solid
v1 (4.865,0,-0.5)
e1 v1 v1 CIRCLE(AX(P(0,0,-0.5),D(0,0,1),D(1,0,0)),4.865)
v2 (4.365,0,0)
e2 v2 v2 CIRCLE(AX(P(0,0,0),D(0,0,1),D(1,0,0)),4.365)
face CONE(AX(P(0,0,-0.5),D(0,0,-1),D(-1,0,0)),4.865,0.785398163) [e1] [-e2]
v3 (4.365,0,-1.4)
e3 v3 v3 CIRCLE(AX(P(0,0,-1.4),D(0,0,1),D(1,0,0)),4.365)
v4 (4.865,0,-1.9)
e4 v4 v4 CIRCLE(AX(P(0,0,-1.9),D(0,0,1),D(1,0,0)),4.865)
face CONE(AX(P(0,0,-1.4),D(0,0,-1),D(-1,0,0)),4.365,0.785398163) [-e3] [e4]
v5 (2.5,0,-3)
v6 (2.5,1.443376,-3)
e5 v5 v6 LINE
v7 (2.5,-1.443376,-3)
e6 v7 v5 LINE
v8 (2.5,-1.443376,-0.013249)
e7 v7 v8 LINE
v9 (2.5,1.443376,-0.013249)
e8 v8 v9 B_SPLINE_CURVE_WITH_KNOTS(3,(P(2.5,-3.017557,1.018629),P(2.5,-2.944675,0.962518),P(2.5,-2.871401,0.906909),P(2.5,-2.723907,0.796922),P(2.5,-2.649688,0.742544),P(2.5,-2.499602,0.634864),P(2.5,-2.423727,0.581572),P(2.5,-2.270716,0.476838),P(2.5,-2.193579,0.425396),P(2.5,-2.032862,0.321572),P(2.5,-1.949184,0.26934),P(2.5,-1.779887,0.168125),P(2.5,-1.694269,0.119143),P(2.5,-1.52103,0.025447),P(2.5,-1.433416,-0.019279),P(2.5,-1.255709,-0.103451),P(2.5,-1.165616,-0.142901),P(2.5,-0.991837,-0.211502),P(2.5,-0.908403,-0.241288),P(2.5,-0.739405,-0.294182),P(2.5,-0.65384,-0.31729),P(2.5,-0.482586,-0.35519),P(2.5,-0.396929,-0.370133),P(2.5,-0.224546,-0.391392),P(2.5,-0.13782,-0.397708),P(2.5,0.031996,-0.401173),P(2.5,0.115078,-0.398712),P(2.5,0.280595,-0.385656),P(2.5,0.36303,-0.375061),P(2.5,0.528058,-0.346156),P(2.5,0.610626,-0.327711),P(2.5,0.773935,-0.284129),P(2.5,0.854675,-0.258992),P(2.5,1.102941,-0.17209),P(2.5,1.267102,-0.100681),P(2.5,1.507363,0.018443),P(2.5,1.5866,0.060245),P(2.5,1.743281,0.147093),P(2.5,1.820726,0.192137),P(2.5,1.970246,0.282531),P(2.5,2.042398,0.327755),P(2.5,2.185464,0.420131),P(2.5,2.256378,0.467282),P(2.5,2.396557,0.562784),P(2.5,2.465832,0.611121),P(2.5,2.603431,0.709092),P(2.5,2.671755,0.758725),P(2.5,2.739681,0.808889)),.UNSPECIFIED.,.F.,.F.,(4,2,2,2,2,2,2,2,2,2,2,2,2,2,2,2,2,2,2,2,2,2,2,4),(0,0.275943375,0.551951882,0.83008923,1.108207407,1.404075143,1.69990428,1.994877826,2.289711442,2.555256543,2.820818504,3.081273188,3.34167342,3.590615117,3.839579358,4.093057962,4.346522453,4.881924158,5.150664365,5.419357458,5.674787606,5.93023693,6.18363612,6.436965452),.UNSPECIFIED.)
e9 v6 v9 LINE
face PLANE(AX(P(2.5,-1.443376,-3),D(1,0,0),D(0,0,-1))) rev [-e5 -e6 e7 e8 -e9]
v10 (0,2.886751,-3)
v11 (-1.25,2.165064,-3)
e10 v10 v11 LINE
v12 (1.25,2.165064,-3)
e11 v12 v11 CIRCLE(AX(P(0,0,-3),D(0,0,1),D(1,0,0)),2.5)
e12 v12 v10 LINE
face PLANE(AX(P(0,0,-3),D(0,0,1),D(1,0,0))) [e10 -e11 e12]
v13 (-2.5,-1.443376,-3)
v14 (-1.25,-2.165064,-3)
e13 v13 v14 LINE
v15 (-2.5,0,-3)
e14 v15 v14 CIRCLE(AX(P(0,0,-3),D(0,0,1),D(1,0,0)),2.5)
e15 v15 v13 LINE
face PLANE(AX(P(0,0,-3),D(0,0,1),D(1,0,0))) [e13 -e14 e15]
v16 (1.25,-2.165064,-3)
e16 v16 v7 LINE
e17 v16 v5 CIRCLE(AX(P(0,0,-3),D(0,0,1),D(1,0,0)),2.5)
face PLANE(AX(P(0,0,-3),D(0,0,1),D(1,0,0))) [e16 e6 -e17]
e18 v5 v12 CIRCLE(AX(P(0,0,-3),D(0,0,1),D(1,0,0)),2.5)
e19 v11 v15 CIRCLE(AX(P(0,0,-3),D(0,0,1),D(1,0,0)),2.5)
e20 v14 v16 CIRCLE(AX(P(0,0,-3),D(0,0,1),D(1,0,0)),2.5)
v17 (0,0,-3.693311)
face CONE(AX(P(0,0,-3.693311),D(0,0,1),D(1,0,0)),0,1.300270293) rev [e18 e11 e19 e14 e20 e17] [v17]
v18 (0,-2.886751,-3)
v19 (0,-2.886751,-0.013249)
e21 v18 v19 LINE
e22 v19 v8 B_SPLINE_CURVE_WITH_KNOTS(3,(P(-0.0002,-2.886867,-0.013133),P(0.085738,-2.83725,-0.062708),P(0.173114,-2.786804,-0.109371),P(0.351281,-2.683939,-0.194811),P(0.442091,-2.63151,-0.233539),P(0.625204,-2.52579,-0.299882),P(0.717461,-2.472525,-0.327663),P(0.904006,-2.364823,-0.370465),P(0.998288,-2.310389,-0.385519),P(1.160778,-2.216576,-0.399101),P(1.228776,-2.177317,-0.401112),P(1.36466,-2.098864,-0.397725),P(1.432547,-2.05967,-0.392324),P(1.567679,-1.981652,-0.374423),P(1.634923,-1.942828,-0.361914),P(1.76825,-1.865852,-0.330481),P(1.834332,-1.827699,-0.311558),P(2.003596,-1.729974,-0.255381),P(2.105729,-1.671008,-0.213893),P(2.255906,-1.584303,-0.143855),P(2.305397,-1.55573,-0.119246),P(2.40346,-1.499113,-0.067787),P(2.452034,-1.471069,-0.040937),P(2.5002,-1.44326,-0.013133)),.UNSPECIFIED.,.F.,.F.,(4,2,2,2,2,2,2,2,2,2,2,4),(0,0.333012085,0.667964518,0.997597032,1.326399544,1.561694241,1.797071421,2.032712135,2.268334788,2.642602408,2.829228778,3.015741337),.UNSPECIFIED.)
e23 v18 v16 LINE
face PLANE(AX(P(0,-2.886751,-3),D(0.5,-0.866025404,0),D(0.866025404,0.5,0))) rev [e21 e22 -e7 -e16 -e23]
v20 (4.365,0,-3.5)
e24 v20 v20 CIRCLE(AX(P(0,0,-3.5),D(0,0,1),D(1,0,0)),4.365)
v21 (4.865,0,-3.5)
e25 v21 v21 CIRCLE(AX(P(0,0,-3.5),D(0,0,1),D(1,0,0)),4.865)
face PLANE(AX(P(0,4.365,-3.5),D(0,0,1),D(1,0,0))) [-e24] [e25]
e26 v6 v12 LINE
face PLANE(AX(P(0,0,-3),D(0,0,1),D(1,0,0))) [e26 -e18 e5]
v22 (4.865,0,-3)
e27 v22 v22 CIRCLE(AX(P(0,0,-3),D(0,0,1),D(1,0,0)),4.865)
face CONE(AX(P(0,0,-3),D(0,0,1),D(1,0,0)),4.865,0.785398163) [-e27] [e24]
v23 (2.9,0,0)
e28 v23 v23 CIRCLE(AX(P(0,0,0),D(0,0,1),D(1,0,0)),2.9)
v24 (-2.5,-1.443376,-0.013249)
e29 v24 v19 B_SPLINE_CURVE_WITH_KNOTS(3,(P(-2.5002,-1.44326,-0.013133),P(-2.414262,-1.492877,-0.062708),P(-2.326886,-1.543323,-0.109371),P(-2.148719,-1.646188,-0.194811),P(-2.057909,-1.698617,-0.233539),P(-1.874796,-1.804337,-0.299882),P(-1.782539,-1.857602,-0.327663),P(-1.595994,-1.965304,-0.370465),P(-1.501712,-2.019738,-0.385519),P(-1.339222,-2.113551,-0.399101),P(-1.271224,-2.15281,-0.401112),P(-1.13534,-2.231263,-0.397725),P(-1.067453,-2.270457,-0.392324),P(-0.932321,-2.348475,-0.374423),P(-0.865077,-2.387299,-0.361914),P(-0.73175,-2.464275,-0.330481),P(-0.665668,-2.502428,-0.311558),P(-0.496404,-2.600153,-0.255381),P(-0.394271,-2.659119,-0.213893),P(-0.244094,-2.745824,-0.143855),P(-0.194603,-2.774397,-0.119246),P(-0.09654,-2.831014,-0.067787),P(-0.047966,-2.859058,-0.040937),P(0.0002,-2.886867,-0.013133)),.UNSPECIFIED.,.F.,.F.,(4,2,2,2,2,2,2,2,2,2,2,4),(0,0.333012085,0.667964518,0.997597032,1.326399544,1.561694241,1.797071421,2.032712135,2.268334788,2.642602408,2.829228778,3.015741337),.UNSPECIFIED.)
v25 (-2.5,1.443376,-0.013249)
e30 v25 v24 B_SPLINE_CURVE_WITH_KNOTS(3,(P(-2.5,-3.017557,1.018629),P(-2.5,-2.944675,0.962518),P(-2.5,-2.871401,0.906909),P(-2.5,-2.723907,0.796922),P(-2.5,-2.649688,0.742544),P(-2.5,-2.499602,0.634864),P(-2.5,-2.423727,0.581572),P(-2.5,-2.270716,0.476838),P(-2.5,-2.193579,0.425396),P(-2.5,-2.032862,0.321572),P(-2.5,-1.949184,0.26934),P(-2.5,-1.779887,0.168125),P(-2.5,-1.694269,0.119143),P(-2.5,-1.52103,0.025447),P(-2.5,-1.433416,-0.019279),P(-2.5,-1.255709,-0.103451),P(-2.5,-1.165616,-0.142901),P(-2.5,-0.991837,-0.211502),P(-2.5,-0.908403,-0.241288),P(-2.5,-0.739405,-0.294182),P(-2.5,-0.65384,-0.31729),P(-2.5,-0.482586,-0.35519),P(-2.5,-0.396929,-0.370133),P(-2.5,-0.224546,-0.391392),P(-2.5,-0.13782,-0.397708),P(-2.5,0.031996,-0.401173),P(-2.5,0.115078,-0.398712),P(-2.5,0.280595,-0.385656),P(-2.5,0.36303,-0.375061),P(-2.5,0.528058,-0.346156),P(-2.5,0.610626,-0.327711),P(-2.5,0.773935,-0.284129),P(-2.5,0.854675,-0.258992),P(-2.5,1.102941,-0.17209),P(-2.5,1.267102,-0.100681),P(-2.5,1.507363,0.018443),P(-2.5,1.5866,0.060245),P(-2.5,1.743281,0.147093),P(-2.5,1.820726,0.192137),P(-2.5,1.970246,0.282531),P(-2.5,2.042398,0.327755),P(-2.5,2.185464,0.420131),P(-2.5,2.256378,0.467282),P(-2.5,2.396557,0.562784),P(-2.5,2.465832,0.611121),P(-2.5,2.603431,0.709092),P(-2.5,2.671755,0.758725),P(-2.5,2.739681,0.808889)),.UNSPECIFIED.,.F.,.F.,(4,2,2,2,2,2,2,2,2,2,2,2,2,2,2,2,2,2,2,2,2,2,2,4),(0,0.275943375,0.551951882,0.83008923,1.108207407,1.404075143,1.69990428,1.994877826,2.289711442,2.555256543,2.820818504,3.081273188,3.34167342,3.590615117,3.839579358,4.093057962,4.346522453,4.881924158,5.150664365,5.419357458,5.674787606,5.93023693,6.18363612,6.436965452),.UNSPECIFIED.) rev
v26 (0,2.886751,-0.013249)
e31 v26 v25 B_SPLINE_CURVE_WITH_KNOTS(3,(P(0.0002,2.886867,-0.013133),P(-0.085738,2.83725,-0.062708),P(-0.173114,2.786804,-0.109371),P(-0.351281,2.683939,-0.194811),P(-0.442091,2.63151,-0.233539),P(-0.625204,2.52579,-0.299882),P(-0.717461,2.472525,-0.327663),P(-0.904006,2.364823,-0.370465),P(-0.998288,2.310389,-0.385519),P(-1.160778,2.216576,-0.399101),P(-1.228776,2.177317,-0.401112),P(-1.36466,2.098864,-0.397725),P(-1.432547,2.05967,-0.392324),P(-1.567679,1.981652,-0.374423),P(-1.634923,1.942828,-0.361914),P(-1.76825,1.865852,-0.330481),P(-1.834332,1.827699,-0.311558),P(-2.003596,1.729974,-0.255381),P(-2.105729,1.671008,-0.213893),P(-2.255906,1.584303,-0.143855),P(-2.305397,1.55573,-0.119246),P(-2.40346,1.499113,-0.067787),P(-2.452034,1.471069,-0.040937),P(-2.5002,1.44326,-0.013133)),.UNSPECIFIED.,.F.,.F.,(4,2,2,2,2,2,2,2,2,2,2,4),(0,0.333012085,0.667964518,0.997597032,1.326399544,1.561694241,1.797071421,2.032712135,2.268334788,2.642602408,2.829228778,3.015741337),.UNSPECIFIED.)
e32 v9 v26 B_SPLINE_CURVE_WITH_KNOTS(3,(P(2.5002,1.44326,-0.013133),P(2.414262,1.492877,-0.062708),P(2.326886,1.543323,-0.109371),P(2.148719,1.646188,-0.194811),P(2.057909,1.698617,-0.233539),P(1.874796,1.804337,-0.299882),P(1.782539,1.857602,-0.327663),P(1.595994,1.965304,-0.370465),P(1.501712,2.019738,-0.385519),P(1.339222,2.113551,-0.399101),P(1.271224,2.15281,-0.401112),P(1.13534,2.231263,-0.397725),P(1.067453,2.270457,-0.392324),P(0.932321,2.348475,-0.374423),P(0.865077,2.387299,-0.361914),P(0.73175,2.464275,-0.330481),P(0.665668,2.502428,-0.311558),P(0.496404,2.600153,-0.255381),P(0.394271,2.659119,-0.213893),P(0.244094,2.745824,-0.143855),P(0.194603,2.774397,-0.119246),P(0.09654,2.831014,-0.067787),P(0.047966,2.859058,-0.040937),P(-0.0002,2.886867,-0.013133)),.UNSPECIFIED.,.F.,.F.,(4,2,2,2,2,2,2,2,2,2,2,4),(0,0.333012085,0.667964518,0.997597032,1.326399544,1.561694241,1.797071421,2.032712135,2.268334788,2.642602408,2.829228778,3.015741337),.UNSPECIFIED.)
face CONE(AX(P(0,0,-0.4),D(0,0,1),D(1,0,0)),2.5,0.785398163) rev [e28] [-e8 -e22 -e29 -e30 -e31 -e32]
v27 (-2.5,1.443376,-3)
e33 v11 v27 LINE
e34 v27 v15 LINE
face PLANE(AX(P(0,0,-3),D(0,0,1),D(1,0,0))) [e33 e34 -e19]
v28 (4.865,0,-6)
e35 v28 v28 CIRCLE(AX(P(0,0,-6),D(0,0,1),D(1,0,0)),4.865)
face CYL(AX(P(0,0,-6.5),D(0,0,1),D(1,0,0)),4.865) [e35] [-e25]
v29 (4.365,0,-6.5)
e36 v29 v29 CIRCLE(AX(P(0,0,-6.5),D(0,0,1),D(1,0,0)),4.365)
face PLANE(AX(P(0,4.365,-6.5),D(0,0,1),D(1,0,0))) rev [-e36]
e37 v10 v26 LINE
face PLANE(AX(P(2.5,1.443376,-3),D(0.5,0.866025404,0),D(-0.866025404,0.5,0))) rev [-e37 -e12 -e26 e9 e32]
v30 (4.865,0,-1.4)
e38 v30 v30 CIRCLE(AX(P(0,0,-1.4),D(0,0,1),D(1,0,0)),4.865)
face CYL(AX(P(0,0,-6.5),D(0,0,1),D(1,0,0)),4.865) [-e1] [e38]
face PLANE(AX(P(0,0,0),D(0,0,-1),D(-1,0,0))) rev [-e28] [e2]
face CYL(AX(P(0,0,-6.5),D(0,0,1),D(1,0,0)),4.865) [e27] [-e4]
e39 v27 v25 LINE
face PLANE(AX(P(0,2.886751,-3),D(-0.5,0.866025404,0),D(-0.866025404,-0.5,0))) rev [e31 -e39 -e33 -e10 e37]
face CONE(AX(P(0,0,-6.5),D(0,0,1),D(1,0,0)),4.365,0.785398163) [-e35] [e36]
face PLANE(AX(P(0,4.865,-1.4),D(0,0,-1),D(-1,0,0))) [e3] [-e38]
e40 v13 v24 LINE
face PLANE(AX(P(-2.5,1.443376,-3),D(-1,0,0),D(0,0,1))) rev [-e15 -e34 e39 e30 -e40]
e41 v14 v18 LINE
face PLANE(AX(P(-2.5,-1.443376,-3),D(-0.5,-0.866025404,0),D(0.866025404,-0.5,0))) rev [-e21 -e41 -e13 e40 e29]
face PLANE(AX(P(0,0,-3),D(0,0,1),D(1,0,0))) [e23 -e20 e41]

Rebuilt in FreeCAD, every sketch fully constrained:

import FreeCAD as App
import Part
import Sketcher
Q = App.Units.Quantity

doc = App.newDocument("Part")
body = doc.addObject("PartDesign::Body", "Body")

# Sketch on YZ plane
sketch1 = doc.addObject("Sketcher::SketchObject", "Sketch")
body.addObject(sketch1)
sketch1.AttachmentSupport = (doc.YZ_Plane, [""])
sketch1.MapMode = "FlatFace"
sketch1.addGeometry([
    Part.LineSegment(App.Vector(4.4, 0, 0), App.Vector(0, 0, 0)),  # 0
    Part.LineSegment(App.Vector(0, 0, 0), App.Vector(0, -6.5, 0)),  # 1
    Part.LineSegment(App.Vector(0, -6.5, 0), App.Vector(4.4, -6.5, 0)),  # 2
    Part.LineSegment(App.Vector(4.4, -6.5, 0), App.Vector(4.9, -6, 0)),  # 3
    Part.LineSegment(App.Vector(4.9, -6, 0), App.Vector(4.9, -0.5, 0)),  # 4
    Part.LineSegment(App.Vector(4.9, -0.5, 0), App.Vector(4.4, 0, 0)),  # 5
], False)
sketch1.addConstraint([
    Sketcher.Constraint("Coincident", 0, 2, 1, 1),
    Sketcher.Constraint("Coincident", 1, 2, 2, 1),
    Sketcher.Constraint("Coincident", 2, 2, 3, 1),
    Sketcher.Constraint("Coincident", 3, 2, 4, 1),
    Sketcher.Constraint("Coincident", 4, 2, 5, 1),
    Sketcher.Constraint("Coincident", 5, 2, 0, 1),
    Sketcher.Constraint("Horizontal", 0),
    Sketcher.Constraint("Vertical", 1),
    Sketcher.Constraint("Horizontal", 2),
    Sketcher.Constraint("Vertical", 4),
    Sketcher.Constraint("Coincident", 0, 2, -1, 1),
    Sketcher.Constraint("Perpendicular", 3, 5),
    Sketcher.Constraint("Vertical", 2, 2, 5, 2),
    Sketcher.Constraint("Equal", 3, 5),
    Sketcher.Constraint("DistanceY", 1, 2, 1, 1, 6.5),
    Sketcher.Constraint("DistanceY", 4, 1, 4, 2, 5.5),
    Sketcher.Constraint("DistanceX", 0, 2, 0, 1, 4.365),
])
revolution = doc.addObject("PartDesign::Revolution", "Revolution")
body.addObject(revolution)
revolution.Profile = sketch1
revolution.ReferenceAxis = (sketch1, ["V_Axis"])
revolution.Angle = 360

# Sketch on YZ plane
sketch2 = doc.addObject("Sketcher::SketchObject", "Sketch001")
body.addObject(sketch2)
sketch2.AttachmentSupport = (doc.YZ_Plane, [""])
sketch2.MapMode = "FlatFace"
sketch2.addGeometry([
    Part.LineSegment(App.Vector(4.9, 0, 0), App.Vector(4.9, -1.4, 0)),  # 0
    Part.LineSegment(App.Vector(4.9, -1.4, 0), App.Vector(4.4, -1.4, 0)),  # 1
    Part.LineSegment(App.Vector(4.4, -1.4, 0), App.Vector(4.9, -1.9, 0)),  # 2
    Part.LineSegment(App.Vector(4.9, -1.9, 0), App.Vector(4.9, -3, 0)),  # 3
    Part.LineSegment(App.Vector(4.9, -3, 0), App.Vector(4.4, -3.5, 0)),  # 4
    Part.LineSegment(App.Vector(4.4, -3.5, 0), App.Vector(4.9, -3.5, 0)),  # 5
    Part.LineSegment(App.Vector(4.9, -3.5, 0), App.Vector(4.9, -6.5, 0)),  # 6
    Part.LineSegment(App.Vector(4.9, -6.5, 0), App.Vector(9.9, -6.5, 0)),  # 7
    Part.LineSegment(App.Vector(9.9, -6.5, 0), App.Vector(9.9, 0, 0)),  # 8
    Part.LineSegment(App.Vector(9.9, 0, 0), App.Vector(4.9, 0, 0)),  # 9
], False)
sketch2.addConstraint([
    Sketcher.Constraint("Coincident", 0, 2, 1, 1),
    Sketcher.Constraint("Coincident", 1, 2, 2, 1),
    Sketcher.Constraint("Coincident", 2, 2, 3, 1),
    Sketcher.Constraint("Coincident", 3, 2, 4, 1),
    Sketcher.Constraint("Coincident", 4, 2, 5, 1),
    Sketcher.Constraint("Coincident", 5, 2, 6, 1),
    Sketcher.Constraint("Coincident", 6, 2, 7, 1),
    Sketcher.Constraint("Coincident", 7, 2, 8, 1),
    Sketcher.Constraint("Coincident", 8, 2, 9, 1),
    Sketcher.Constraint("Coincident", 9, 2, 0, 1),
    Sketcher.Constraint("Vertical", 0),
    Sketcher.Constraint("Horizontal", 1),
    Sketcher.Constraint("Vertical", 3),
    Sketcher.Constraint("Horizontal", 5),
    Sketcher.Constraint("Vertical", 6),
    Sketcher.Constraint("Horizontal", 7),
    Sketcher.Constraint("Vertical", 8),
    Sketcher.Constraint("Horizontal", 9),
    Sketcher.Constraint("PointOnObject", 8, 2, -1),
    Sketcher.Constraint("Perpendicular", 2, 4),
    Sketcher.Constraint("Vertical", 0, 2, 2, 2),
    Sketcher.Constraint("Vertical", 1, 2, 4, 2),
    Sketcher.Constraint("Vertical", 3, 2, 5, 2),
    Sketcher.Constraint("Equal", 2, 4),
    Sketcher.Constraint("DistanceX", 7, 1, 7, 2, 5.0),
    Sketcher.Constraint("DistanceY", 6, 2, 6, 1, 3.0),
    Sketcher.Constraint("DistanceX", 1, 2, 1, 1, 0.5),
    Sketcher.Constraint("DistanceY", 0, 2, 0, 1, 1.4),
    Sketcher.Constraint("DistanceY", 3, 2, 3, 1, 1.1),
    Sketcher.Constraint("DistanceX", -1, 1, 0, 2, 4.865),
])
groove = doc.addObject("PartDesign::Groove", "Groove")
body.addObject(groove)
groove.Profile = sketch2
groove.ReferenceAxis = (sketch2, ["V_Axis"])
groove.Angle = 360

# Sketch on YZ plane
sketch3 = doc.addObject("Sketcher::SketchObject", "Sketch002")
body.addObject(sketch3)
sketch3.AttachmentSupport = (doc.YZ_Plane, [""])
sketch3.MapMode = "FlatFace"
sketch3.addGeometry([
    Part.LineSegment(App.Vector(2.9, 0, 0), App.Vector(0, 0, 0)),  # 0
    Part.LineSegment(App.Vector(0, 0, 0), App.Vector(0, -3.7, 0)),  # 1
    Part.LineSegment(App.Vector(0, -3.7, 0), App.Vector(2.5, -3, 0)),  # 2
    Part.LineSegment(App.Vector(2.5, -3, 0), App.Vector(2.5, -0.4, 0)),  # 3
    Part.LineSegment(App.Vector(2.5, -0.4, 0), App.Vector(2.9, 0, 0)),  # 4
], False)
sketch3.addConstraint([
    Sketcher.Constraint("Coincident", 0, 2, 1, 1),
    Sketcher.Constraint("Coincident", 1, 2, 2, 1),
    Sketcher.Constraint("Coincident", 2, 2, 3, 1),
    Sketcher.Constraint("Coincident", 3, 2, 4, 1),
    Sketcher.Constraint("Coincident", 4, 2, 0, 1),
    Sketcher.Constraint("Horizontal", 0),
    Sketcher.Constraint("Vertical", 1),
    Sketcher.Constraint("Vertical", 3),
    Sketcher.Constraint("Coincident", 0, 2, -1, 1),
    Sketcher.Constraint("Angle", 4, Q("45 deg")),
    Sketcher.Constraint("DistanceX", 0, 2, 0, 1, 2.9),
    Sketcher.Constraint("DistanceY", 3, 1, 3, 2, 2.6),
    Sketcher.Constraint("DistanceY", 2, 2, -1, 1, 3.0),
    Sketcher.Constraint("Angle", 2, Q("15.5 deg")),
])
groove2 = doc.addObject("PartDesign::Groove", "Groove001")
body.addObject(groove2)
groove2.Profile = sketch3
groove2.ReferenceAxis = (sketch3, ["V_Axis"])
groove2.Angle = 360

# Sketch on XY plane
sketch4 = doc.addObject("Sketcher::SketchObject", "Sketch003")
body.addObject(sketch4)
sketch4.AttachmentSupport = (doc.XY_Plane, [""])
sketch4.MapMode = "FlatFace"
sketch4.addGeometry([
    Part.LineSegment(App.Vector(-2.5, -1.4, 0), App.Vector(0, -2.9, 0)),  # 0
    Part.LineSegment(App.Vector(0, -2.9, 0), App.Vector(2.5, -1.4, 0)),  # 1
    Part.LineSegment(App.Vector(2.5, -1.4, 0), App.Vector(2.5, 1.4, 0)),  # 2
    Part.LineSegment(App.Vector(2.5, 1.4, 0), App.Vector(0, 2.9, 0)),  # 3
    Part.LineSegment(App.Vector(0, 2.9, 0), App.Vector(-2.5, 1.4, 0)),  # 4
    Part.LineSegment(App.Vector(-2.5, 1.4, 0), App.Vector(-2.5, -1.4, 0)),  # 5
], False)
sketch4.addConstraint([
    Sketcher.Constraint("Coincident", 0, 2, 1, 1),
    Sketcher.Constraint("Coincident", 1, 2, 2, 1),
    Sketcher.Constraint("Coincident", 2, 2, 3, 1),
    Sketcher.Constraint("Coincident", 3, 2, 4, 1),
    Sketcher.Constraint("Coincident", 4, 2, 5, 1),
    Sketcher.Constraint("Coincident", 5, 2, 0, 1),
    Sketcher.Constraint("Vertical", 2),
    Sketcher.Constraint("Vertical", 5),
    Sketcher.Constraint("Symmetric", 0, 2, 3, 2, -1, 1),
    Sketcher.Constraint("Symmetric", 1, 2, 4, 2, -1, 1),
    Sketcher.Constraint("PointOnObject", 0, 2, -2),
    Sketcher.Constraint("Parallel", 0, 3),
    Sketcher.Constraint("Horizontal", 2, 2, 4, 2),
    Sketcher.Constraint("Angle", 0, Q("-30 deg")),
    Sketcher.Constraint("DistanceX", 4, 2, 2, 2, 5.0),
    Sketcher.Constraint("DistanceY", 2, 1, 2, 2, 2.886751),
])
pocket1 = doc.addObject("PartDesign::Pocket", "Pocket")
body.addObject(pocket1)
pocket1.Profile = sketch4
pocket1.Length = 3

doc.recompute()
